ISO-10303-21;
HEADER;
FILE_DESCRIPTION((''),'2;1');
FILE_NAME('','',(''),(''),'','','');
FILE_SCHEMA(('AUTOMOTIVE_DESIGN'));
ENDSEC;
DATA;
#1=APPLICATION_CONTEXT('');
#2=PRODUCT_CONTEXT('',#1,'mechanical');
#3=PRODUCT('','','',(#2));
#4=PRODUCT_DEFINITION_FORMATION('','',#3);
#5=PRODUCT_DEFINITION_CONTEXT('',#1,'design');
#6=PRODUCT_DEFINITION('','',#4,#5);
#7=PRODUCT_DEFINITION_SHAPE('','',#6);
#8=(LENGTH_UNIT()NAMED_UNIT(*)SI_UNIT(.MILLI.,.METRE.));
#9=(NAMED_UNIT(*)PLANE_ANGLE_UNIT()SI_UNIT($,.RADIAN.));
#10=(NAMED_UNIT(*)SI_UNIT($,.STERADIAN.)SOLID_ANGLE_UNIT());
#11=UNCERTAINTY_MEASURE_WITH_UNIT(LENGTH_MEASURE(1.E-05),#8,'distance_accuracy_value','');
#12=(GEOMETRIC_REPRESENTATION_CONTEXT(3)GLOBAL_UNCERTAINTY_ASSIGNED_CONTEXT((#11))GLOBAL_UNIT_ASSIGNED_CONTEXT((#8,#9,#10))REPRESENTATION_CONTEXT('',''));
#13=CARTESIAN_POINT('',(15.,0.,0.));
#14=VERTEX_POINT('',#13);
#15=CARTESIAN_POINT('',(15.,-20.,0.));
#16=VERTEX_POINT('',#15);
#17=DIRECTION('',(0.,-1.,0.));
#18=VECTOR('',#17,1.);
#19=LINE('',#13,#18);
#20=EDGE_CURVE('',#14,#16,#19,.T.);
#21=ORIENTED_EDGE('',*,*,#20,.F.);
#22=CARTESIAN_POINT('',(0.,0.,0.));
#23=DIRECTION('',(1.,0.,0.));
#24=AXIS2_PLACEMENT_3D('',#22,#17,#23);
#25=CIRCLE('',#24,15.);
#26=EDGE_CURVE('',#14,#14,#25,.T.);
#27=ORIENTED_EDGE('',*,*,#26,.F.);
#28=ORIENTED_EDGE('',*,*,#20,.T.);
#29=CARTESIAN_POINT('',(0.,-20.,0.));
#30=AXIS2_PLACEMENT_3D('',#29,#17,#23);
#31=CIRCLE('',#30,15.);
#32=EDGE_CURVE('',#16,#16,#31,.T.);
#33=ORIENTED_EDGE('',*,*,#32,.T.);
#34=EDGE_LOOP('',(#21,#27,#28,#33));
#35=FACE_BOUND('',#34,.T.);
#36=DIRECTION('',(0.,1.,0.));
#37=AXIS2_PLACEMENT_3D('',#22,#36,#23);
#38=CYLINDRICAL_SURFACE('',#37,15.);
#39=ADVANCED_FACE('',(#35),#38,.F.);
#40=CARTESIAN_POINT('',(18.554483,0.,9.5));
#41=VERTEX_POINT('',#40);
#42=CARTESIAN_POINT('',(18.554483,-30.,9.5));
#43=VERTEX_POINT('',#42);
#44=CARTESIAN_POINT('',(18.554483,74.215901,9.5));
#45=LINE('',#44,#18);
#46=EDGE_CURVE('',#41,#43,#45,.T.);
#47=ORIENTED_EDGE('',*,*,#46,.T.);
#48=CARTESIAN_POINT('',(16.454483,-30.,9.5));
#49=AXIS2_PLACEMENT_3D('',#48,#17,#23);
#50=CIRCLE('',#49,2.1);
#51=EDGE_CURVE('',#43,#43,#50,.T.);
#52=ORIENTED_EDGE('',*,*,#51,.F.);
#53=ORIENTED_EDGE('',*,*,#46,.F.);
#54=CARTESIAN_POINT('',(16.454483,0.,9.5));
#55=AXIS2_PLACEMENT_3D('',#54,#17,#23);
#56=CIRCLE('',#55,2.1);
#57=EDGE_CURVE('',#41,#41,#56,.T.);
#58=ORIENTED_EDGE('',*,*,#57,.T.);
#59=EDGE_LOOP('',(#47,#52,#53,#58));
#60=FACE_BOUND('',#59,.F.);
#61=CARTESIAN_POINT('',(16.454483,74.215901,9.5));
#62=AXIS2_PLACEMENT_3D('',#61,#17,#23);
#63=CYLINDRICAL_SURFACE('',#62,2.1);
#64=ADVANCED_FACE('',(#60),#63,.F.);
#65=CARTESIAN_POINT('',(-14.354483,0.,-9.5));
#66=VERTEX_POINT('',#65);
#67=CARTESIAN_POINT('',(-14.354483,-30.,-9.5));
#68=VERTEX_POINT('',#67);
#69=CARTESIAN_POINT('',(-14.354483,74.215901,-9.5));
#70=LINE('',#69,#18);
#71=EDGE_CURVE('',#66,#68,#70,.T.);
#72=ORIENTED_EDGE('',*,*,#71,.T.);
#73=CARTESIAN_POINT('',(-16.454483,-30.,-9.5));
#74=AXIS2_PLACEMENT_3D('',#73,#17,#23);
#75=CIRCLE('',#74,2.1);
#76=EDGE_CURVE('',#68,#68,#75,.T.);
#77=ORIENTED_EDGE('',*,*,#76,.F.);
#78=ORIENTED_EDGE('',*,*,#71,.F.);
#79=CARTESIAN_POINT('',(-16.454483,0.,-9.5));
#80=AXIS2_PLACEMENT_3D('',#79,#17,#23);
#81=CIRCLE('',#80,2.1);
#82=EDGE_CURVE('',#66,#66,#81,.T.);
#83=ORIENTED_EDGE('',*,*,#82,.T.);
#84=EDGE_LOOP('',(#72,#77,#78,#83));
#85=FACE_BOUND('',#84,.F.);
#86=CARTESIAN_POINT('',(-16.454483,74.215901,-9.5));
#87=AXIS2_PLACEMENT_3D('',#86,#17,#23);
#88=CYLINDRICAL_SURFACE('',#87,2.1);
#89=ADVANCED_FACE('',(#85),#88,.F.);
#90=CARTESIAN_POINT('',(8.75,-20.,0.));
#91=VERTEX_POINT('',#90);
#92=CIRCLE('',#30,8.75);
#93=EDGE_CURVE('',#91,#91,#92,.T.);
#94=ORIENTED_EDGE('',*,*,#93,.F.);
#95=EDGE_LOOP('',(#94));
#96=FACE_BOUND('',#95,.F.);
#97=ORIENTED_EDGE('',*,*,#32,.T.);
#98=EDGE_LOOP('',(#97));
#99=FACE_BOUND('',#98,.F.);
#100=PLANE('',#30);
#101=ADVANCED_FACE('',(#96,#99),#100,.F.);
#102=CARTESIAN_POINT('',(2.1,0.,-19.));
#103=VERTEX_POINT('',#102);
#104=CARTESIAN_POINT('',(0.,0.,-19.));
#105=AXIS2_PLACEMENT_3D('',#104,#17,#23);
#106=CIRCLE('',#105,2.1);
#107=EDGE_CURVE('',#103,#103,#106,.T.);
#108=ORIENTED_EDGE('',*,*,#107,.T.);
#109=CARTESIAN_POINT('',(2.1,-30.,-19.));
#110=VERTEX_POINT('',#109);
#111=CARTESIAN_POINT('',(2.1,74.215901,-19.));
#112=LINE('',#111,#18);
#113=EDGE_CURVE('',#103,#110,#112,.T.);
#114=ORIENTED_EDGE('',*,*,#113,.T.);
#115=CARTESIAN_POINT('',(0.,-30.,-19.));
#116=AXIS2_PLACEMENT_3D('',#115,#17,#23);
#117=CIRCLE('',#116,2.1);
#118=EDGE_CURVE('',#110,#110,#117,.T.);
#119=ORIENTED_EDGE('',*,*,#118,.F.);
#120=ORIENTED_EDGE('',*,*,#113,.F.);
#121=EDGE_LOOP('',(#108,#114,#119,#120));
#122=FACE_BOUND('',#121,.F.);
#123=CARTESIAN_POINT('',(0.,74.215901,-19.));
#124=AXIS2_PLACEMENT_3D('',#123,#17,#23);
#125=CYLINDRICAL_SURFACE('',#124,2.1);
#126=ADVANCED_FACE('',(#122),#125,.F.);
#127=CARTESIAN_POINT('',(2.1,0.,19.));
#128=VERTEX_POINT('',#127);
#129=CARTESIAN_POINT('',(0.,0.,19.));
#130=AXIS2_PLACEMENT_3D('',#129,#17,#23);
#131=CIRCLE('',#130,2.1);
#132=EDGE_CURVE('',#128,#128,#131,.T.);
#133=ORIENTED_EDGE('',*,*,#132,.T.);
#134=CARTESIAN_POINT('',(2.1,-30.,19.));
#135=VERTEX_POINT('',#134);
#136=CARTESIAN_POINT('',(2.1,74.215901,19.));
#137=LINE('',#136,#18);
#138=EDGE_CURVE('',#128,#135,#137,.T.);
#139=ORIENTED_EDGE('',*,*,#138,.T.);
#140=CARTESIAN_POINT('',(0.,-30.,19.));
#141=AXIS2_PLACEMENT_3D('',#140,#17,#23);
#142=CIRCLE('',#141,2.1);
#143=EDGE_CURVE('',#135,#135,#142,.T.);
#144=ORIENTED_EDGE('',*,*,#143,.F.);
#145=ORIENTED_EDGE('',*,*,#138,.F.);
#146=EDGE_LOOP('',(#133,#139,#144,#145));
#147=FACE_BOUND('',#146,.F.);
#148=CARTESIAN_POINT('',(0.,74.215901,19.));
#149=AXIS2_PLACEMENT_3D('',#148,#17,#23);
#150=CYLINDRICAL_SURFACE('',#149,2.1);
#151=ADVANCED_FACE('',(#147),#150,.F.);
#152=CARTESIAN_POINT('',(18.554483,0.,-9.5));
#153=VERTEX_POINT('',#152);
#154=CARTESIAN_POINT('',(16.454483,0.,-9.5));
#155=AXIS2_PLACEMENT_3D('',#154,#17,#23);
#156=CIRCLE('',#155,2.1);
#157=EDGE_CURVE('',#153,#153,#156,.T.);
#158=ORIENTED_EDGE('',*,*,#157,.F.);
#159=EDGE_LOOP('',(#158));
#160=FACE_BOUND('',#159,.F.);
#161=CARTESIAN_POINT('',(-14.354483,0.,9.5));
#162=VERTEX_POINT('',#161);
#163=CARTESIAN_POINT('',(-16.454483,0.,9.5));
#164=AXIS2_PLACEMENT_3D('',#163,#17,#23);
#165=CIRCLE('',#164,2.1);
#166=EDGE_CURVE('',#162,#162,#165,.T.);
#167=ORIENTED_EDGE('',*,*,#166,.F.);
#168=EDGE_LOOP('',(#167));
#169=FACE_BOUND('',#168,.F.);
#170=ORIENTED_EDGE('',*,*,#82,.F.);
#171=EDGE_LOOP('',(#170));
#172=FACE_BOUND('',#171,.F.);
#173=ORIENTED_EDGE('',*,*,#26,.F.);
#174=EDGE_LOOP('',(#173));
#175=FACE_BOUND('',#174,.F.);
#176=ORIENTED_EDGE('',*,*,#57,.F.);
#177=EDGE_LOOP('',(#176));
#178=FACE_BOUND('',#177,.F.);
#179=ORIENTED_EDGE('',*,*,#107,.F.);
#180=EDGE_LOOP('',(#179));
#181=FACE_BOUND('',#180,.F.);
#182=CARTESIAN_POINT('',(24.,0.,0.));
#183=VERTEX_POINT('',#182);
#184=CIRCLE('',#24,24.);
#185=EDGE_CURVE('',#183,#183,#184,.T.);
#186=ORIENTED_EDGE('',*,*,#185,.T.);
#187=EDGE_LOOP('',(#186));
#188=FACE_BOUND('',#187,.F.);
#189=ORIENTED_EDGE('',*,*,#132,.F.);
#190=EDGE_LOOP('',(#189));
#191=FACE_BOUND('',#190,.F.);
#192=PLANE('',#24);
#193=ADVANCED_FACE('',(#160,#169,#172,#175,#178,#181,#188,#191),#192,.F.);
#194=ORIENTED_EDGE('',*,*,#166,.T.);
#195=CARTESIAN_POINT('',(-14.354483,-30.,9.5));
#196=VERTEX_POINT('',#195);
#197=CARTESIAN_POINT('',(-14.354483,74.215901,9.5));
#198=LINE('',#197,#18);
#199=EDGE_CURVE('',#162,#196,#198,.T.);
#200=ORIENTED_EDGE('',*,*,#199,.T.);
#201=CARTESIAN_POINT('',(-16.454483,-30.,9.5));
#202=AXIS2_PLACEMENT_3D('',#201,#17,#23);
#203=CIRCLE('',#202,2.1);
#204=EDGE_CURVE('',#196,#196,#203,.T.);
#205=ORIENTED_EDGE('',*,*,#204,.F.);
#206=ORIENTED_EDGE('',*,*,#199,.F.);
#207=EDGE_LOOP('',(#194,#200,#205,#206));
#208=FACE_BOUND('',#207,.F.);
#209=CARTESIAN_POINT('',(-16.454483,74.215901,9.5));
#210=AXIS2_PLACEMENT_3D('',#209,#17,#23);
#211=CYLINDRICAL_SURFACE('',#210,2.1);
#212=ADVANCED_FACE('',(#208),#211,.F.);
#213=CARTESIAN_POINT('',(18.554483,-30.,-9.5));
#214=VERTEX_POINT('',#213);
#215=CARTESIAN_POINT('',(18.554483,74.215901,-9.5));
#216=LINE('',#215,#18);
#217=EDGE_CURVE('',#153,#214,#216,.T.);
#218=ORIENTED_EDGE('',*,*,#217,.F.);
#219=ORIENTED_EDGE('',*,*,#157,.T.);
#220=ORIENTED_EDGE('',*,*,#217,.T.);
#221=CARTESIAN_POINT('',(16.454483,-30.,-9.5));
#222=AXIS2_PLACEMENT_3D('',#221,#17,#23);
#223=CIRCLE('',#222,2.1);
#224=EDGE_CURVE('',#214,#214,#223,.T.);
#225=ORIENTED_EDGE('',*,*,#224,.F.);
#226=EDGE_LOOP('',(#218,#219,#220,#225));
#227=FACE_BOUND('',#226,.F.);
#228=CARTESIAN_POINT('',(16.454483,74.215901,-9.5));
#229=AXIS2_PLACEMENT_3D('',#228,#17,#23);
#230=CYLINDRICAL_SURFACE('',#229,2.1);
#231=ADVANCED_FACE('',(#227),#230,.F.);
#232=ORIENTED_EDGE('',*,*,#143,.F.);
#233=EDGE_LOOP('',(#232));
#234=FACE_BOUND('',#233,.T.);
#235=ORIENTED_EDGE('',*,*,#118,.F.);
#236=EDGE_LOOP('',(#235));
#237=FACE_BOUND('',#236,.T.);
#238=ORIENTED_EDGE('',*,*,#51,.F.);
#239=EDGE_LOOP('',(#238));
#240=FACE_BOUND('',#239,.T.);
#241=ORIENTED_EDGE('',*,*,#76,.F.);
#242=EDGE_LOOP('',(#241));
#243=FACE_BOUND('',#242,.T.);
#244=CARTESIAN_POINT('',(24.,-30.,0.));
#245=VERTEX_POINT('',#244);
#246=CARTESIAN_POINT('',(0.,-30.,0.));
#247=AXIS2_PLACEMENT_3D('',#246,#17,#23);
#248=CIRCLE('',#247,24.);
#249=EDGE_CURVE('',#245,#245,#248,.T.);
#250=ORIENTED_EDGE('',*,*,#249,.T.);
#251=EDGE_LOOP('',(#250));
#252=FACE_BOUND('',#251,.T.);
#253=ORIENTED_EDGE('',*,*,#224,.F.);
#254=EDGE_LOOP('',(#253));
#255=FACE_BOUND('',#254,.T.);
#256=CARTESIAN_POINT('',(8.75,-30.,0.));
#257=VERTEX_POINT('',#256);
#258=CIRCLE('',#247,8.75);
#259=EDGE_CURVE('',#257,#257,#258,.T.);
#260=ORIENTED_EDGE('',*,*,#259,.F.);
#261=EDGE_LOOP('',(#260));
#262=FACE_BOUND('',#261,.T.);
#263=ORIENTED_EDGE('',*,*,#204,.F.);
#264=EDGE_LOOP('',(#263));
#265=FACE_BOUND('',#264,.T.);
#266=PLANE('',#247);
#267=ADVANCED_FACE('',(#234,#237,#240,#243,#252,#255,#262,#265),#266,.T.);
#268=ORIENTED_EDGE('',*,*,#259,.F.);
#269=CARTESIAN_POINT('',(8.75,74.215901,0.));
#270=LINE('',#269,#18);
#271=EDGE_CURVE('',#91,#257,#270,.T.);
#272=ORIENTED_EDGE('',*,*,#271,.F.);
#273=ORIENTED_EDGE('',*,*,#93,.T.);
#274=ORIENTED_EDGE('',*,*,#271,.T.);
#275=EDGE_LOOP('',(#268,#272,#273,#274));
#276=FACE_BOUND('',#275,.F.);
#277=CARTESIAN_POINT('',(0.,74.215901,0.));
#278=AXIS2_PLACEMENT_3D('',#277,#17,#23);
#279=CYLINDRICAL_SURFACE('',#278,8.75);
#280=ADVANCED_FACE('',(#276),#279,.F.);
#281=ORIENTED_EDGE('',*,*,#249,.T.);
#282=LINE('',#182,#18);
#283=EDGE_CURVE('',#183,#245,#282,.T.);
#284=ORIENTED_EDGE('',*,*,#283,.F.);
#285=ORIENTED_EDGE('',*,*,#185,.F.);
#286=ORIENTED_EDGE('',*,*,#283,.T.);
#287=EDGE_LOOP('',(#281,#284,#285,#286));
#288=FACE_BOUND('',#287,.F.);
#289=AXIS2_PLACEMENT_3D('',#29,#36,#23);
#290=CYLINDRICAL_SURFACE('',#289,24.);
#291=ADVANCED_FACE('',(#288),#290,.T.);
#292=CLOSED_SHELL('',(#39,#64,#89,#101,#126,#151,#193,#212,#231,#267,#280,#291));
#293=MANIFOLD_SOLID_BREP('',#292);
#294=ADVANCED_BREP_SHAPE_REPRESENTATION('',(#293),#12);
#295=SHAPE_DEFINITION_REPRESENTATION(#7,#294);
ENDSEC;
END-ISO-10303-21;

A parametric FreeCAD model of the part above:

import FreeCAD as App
import Part
import Sketcher
from FreeCAD import Vector

doc = App.newDocument("Part")
body = doc.addObject("PartDesign::Body", "Body")

# Sketch on XZ plane
sketch1 = body.newObject("Sketcher::SketchObject", "Sketch")
sketch1.AttachmentSupport = (doc.getObject("XZ_Plane"), [""])
sketch1.MapMode = "FlatFace"
sketch1.addGeometry(Part.Circle(Vector(0, 0, 0), Vector(0, 0, 1), 24), False)
sketch1.addGeometry(Part.Circle(Vector(0, 0, 0), Vector(0, 0, 1), 15), False)
sketch1.addConstraint(Sketcher.Constraint("Coincident", 0, 3, -1, 1))
sketch1.addConstraint(Sketcher.Constraint("Coincident", 1, 3, -1, 1))
sketch1.addConstraint(Sketcher.Constraint("Diameter", 0, 48.0))
sketch1.addConstraint(Sketcher.Constraint("Diameter", 1, 30.0))
pad1 = body.newObject("PartDesign::Pad", "Pad")
pad1.Profile = sketch1
pad1.Length = 20

# Sketch on XZ plane
sketch2 = body.newObject("Sketcher::SketchObject", "Sketch001")
sketch2.AttachmentSupport = (doc.getObject("XZ_Plane"), [""])
sketch2.MapMode = "FlatFace"
sketch2.AttachmentOffset = App.Placement(Vector(0, 0, 20), App.Rotation())
sketch2.addGeometry(Part.Circle(Vector(0, 0, 0), Vector(0, 0, 1), 24), False)
sketch2.addConstraint(Sketcher.Constraint("Coincident", 0, 3, -1, 1))
sketch2.addConstraint(Sketcher.Constraint("Diameter", 0, 48.0))
pad2 = body.newObject("PartDesign::Pad", "Pad001")
pad2.Profile = sketch2
pad2.Length = 10

# Sketch on XZ plane
sketch3 = body.newObject("Sketcher::SketchObject", "Sketch002")
sketch3.AttachmentSupport = (doc.getObject("XZ_Plane"), [""])
sketch3.MapMode = "FlatFace"
sketch3.addGeometry(Part.Circle(Vector(0, 19, 0), Vector(0, 0, 1), 2.1), False)
sketch3.addGeometry(Part.Circle(Vector(-16.454483, 9.5, 0), Vector(0, 0, 1), 2.1), False)
sketch3.addGeometry(Part.Circle(Vector(-16.454483, -9.5, 0), Vector(0, 0, 1), 2.1), False)
sketch3.addGeometry(Part.Circle(Vector(0, -19, 0), Vector(0, 0, 1), 2.1), False)
sketch3.addGeometry(Part.Circle(Vector(16.454483, -9.5, 0), Vector(0, 0, 1), 2.1), False)
sketch3.addGeometry(Part.Circle(Vector(16.454483, 9.5, 0), Vector(0, 0, 1), 2.1), False)
sketch3.addConstraint(Sketcher.Constraint("Equal", 0, 1))
sketch3.addConstraint(Sketcher.Constraint("Equal", 1, 2))
sketch3.addConstraint(Sketcher.Constraint("Equal", 2, 3))
sketch3.addConstraint(Sketcher.Constraint("Equal", 3, 4))
sketch3.addConstraint(Sketcher.Constraint("Equal", 4, 5))
sketch3.addConstraint(Sketcher.Constraint("Symmetric", 0, 3, 3, 3, -1, 1))
sketch3.addConstraint(Sketcher.Constraint("Symmetric", 1, 3, 4, 3, -1, 1))
sketch3.addConstraint(Sketcher.Constraint("Symmetric", 2, 3, 5, 3, -1, 1))
sketch3.addConstraint(Sketcher.Constraint("Symmetric", 2, 3, 4, 3, -2))
sketch3.addConstraint(Sketcher.Constraint("PointOnObject", 0, 3, -2))
sketch3.addConstraint(Sketcher.Constraint("Diameter", 0, 4.2))
sketch3.addConstraint(Sketcher.Constraint("DistanceY", -1, 1, 0, 3, 19.0))
sketch3.addConstraint(Sketcher.Constraint("DistanceY", 2, 3, 1, 3, 19.0))
sketch3.addConstraint(Sketcher.Constraint("DistanceX", 1, 3, -1, 1, 16.454483))
doc.recompute()
hole = body.newObject("PartDesign::Hole", "Hole")
hole.Profile = sketch3
hole.ThreadType = "None"
hole.Diameter = 4.2
hole.DepthType = "ThroughAll"
hole.Reversed = True

# Sketch on XZ plane
sketch4 = body.newObject("Sketcher::SketchObject", "Sketch003")
sketch4.AttachmentSupport = (doc.getObject("XZ_Plane"), [""])
sketch4.MapMode = "FlatFace"
sketch4.addGeometry(Part.Circle(Vector(0, 0, 0), Vector(0, 0, 1), 8.75), False)
sketch4.addConstraint(Sketcher.Constraint("Coincident", 0, 3, -1, 1))
sketch4.addConstraint(Sketcher.Constraint("Diameter", 0, 17.5))
doc.recompute()
hole2 = body.newObject("PartDesign::Hole", "Hole001")
hole2.Profile = sketch4
hole2.ThreadType = "None"
hole2.Diameter = 17.5
hole2.DepthType = "ThroughAll"
hole2.Reversed = True

doc.recompute()
